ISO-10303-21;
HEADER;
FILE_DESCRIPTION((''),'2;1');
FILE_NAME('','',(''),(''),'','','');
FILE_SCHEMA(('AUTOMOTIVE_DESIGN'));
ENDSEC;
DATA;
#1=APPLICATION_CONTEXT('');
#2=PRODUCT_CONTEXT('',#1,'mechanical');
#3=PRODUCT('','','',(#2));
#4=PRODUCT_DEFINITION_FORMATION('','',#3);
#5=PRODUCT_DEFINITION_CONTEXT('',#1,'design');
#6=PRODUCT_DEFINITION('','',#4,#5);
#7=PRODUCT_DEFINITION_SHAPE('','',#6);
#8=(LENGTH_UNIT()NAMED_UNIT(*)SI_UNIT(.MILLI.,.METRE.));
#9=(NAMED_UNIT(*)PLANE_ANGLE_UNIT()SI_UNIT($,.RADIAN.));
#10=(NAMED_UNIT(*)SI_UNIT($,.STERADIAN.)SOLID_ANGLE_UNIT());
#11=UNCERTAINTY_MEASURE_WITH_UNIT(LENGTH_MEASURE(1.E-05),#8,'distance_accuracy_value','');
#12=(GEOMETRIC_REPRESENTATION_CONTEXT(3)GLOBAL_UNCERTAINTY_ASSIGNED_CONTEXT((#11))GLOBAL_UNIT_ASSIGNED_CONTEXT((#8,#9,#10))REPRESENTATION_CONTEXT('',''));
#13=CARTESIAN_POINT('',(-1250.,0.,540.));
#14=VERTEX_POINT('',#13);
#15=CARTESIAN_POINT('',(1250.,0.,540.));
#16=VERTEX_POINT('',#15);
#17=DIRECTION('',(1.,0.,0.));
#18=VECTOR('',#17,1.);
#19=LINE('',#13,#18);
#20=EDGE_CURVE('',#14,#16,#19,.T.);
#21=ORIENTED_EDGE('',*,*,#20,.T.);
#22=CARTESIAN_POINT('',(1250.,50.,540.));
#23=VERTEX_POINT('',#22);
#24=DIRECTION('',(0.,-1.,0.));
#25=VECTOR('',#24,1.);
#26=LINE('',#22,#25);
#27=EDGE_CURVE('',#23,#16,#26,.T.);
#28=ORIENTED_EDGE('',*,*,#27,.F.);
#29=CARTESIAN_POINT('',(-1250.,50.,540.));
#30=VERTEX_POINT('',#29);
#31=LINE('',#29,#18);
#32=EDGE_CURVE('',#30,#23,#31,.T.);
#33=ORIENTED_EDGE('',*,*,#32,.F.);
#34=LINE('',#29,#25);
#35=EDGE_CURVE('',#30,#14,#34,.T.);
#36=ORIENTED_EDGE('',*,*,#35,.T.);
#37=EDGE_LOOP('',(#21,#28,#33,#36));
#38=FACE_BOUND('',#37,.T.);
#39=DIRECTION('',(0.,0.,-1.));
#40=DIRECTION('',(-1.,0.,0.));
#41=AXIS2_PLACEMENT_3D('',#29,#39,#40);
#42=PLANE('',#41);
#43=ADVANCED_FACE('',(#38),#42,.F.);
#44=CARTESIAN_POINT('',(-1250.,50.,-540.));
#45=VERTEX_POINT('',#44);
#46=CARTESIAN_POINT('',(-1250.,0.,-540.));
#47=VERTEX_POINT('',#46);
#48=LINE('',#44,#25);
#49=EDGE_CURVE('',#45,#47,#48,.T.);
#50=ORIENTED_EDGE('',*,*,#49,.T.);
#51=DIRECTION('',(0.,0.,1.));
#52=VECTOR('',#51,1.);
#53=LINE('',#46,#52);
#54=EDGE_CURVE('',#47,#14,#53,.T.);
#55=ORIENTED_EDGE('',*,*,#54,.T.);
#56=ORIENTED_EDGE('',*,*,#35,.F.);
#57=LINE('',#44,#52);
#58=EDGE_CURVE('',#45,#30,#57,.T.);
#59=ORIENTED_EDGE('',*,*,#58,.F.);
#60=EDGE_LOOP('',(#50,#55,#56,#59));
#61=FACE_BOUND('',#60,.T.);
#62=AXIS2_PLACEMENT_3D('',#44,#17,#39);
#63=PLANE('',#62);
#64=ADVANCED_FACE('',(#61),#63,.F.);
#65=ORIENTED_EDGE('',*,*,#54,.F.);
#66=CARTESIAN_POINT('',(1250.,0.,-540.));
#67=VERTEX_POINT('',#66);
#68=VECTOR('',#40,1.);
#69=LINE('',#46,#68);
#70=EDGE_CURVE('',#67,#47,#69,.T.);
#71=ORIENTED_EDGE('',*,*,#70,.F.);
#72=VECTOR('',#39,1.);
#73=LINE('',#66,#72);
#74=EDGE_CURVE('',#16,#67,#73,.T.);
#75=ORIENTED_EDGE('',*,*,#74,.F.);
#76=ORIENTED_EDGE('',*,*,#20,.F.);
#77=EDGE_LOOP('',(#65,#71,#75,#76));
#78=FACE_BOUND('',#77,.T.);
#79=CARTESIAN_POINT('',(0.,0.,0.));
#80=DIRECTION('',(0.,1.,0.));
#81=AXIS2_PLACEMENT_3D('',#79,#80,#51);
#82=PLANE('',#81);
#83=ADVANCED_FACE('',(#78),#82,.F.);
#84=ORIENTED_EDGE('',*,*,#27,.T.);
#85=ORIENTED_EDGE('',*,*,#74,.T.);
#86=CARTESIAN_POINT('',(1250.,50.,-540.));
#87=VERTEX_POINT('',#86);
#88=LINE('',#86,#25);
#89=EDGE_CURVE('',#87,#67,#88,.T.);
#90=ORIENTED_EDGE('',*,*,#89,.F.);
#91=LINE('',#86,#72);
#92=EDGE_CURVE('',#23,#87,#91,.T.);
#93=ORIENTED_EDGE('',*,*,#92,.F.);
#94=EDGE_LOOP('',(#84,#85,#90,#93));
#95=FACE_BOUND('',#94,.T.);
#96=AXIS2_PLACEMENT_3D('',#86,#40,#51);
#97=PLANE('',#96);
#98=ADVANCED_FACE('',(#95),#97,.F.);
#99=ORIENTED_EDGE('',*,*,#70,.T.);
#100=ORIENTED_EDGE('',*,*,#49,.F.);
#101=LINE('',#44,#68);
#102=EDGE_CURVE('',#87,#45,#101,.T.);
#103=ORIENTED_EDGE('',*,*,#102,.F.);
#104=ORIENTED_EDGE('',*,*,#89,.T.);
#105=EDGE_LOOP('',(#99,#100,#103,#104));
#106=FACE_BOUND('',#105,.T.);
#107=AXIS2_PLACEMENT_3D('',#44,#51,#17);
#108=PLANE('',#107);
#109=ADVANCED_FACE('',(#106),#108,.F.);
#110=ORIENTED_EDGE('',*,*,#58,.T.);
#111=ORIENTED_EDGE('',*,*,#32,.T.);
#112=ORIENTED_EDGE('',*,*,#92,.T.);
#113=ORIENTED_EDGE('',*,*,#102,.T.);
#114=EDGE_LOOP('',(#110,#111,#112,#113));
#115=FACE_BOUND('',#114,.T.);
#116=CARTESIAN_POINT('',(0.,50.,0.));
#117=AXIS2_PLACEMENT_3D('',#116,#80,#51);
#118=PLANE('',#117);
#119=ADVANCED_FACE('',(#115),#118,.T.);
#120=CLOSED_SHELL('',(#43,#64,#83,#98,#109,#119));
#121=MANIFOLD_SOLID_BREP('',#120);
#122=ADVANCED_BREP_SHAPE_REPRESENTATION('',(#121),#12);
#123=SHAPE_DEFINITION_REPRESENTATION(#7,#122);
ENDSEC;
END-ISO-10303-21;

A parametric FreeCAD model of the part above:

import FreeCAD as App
import Part
import Sketcher

V = App.Vector

doc = App.newDocument("Part")
params = doc.addObject("Spreadsheet::Sheet", "Params")
for row, (alias, value) in enumerate([
    ("sketch1_width", "2500 mm"),
    ("sketch1_height", "1080 mm"),
    ("pad1_length", "50 mm"),
], start=1):
    params.set(f"A{row}", alias)
    params.set(f"B{row}", "=" + value)
    params.setAlias(f"B{row}", alias)

body = doc.addObject("PartDesign::Body", "Body")

# Sketch on XZ plane
sketch1 = body.newObject("Sketcher::SketchObject", "Sketch")
sketch1.AttachmentSupport = (doc.getObject("XZ_Plane"), [""])
sketch1.MapMode = "FlatFace"
sketch1.addGeometry(Part.LineSegment(V(-1250, -540, 0), V(-1250, 540, 0)), False)
sketch1.addGeometry(Part.LineSegment(V(-1250, 540, 0), V(1250, 540, 0)), False)
sketch1.addGeometry(Part.LineSegment(V(1250, 540, 0), V(1250, -540, 0)), False)
sketch1.addGeometry(Part.LineSegment(V(1250, -540, 0), V(-1250, -540, 0)), False)
sketch1.addConstraint(Sketcher.Constraint("Coincident", 0, 2, 1, 1))
sketch1.addConstraint(Sketcher.Constraint("Coincident", 1, 2, 2, 1))
sketch1.addConstraint(Sketcher.Constraint("Coincident", 2, 2, 3, 1))
sketch1.addConstraint(Sketcher.Constraint("Coincident", 3, 2, 0, 1))
sketch1.addConstraint(Sketcher.Constraint("Vertical", 0))
sketch1.addConstraint(Sketcher.Constraint("Horizontal", 1))
sketch1.addConstraint(Sketcher.Constraint("Vertical", 2))
sketch1.addConstraint(Sketcher.Constraint("Horizontal", 3))
sketch1.addConstraint(Sketcher.Constraint("Symmetric", 0, 2, 2, 2, -1, 1))
sketch1.addConstraint(Sketcher.Constraint("DistanceX", 1, 1, 1, 2, 2500.0))
sketch1.addConstraint(Sketcher.Constraint("DistanceY", 0, 1, 0, 2, 1080.0))
sketch1.setExpression("Constraints[9]", "Params.sketch1_width")
sketch1.setExpression("Constraints[10]", "Params.sketch1_height")
pad1 = body.newObject("PartDesign::Pad", "Pad")
pad1.Profile = sketch1
pad1.setExpression("Length", "Params.pad1_length")
pad1.Reversed = True

doc.recompute()
